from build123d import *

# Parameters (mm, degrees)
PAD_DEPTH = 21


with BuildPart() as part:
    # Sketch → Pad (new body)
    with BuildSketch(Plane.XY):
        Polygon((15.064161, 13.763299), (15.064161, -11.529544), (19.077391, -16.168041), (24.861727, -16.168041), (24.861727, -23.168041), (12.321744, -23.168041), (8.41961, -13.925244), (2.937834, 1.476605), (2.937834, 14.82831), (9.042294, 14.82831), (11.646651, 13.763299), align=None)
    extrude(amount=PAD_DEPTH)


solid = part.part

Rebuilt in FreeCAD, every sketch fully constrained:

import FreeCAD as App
import Part
import Sketcher
Q = App.Units.Quantity

doc = App.newDocument("Part")
body = doc.addObject("PartDesign::Body", "Body")

# Sketch on XY plane
sketch1 = body.newObject("Sketcher::SketchObject", "Sketch")
sketch1.AttachmentSupport = (doc.getObject("XY_Plane"), [""])
sketch1.MapMode = "FlatFace"
sketch1.addGeometry([
    Part.LineSegment(App.Vector(15.1, -11.5, 0), App.Vector(15.1, 13.8, 0)),  # 0
    Part.LineSegment(App.Vector(15.1, 13.8, 0), App.Vector(11.6, 13.8, 0)),  # 1
    Part.LineSegment(App.Vector(11.6, 13.8, 0), App.Vector(9, 14.8, 0)),  # 2
    Part.LineSegment(App.Vector(9, 14.8, 0), App.Vector(2.9, 14.8, 0)),  # 3
    Part.LineSegment(App.Vector(2.9, 14.8, 0), App.Vector(2.9, 1.5, 0)),  # 4
    Part.LineSegment(App.Vector(2.9, 1.5, 0), App.Vector(8.4, -13.9, 0)),  # 5
    Part.LineSegment(App.Vector(8.4, -13.9, 0), App.Vector(12.3, -23.2, 0)),  # 6
    Part.LineSegment(App.Vector(12.3, -23.2, 0), App.Vector(24.9, -23.2, 0)),  # 7
    Part.LineSegment(App.Vector(24.9, -23.2, 0), App.Vector(24.9, -16.2, 0)),  # 8
    Part.LineSegment(App.Vector(24.9, -16.2, 0), App.Vector(19.1, -16.2, 0)),  # 9
    Part.LineSegment(App.Vector(19.1, -16.2, 0), App.Vector(15.1, -11.5, 0)),  # 10
], False)
sketch1.addConstraint([
    Sketcher.Constraint("Coincident", 0, 2, 1, 1),
    Sketcher.Constraint("Coincident", 1, 2, 2, 1),
    Sketcher.Constraint("Coincident", 2, 2, 3, 1),
    Sketcher.Constraint("Coincident", 3, 2, 4, 1),
    Sketcher.Constraint("Coincident", 4, 2, 5, 1),
    Sketcher.Constraint("Coincident", 5, 2, 6, 1),
    Sketcher.Constraint("Coincident", 6, 2, 7, 1),
    Sketcher.Constraint("Coincident", 7, 2, 8, 1),
    Sketcher.Constraint("Coincident", 8, 2, 9, 1),
    Sketcher.Constraint("Coincident", 9, 2, 10, 1),
    Sketcher.Constraint("Coincident", 10, 2, 0, 1),
    Sketcher.Constraint("Vertical", 0),
    Sketcher.Constraint("Horizontal", 1),
    Sketcher.Constraint("Horizontal", 3),
    Sketcher.Constraint("Vertical", 4),
    Sketcher.Constraint("Horizontal", 7),
    Sketcher.Constraint("Vertical", 8),
    Sketcher.Constraint("Horizontal", 9),
    Sketcher.Constraint("DistanceY", 8, 1, 8, 2, Q("7 mm")),
    Sketcher.Constraint("DistanceX", 1, 2, 1, 1, Q("3.41751 mm")),
    Sketcher.Constraint("DistanceX", 3, 2, 3, 1, Q("6.10446 mm")),
    Sketcher.Constraint("DistanceY", -1, 1, 0, 2, Q("13.763299 mm")),
    Sketcher.Constraint("DistanceY", 5, 2, 10, 2, Q("2.3957 mm")),
    Sketcher.Constraint("Distance", 10, Q("6.133651 mm")),
    Sketcher.Constraint("DistanceX", 7, 1, 7, 2, Q("12.539983 mm")),
    Sketcher.Constraint("DistanceX", 9, 2, 9, 1, Q("5.784336 mm")),
    Sketcher.Constraint("DistanceY", 0, 1, 0, 2, Q("25.292843 mm")),
    Sketcher.Constraint("DistanceY", 4, 2, 4, 1, Q("13.351705 mm")),
    Sketcher.Constraint("DistanceX", -1, 1, 0, 2, Q("15.064161 mm")),
    Sketcher.Constraint("DistanceY", -1, 1, 2, 2, Q("14.82831 mm")),
    Sketcher.Constraint("DistanceX", -1, 1, 5, 2, Q("8.41961 mm")),
    Sketcher.Constraint("DistanceY", 6, 2, -1, 1, Q("23.168041 mm")),
    Sketcher.Constraint("DistanceX", 4, 2, 6, 2, Q("9.38391 mm")),
])
pad1 = body.newObject("PartDesign::Pad", "Pad")
pad1.Profile = sketch1
pad1.Length = 21

doc.recompute()
